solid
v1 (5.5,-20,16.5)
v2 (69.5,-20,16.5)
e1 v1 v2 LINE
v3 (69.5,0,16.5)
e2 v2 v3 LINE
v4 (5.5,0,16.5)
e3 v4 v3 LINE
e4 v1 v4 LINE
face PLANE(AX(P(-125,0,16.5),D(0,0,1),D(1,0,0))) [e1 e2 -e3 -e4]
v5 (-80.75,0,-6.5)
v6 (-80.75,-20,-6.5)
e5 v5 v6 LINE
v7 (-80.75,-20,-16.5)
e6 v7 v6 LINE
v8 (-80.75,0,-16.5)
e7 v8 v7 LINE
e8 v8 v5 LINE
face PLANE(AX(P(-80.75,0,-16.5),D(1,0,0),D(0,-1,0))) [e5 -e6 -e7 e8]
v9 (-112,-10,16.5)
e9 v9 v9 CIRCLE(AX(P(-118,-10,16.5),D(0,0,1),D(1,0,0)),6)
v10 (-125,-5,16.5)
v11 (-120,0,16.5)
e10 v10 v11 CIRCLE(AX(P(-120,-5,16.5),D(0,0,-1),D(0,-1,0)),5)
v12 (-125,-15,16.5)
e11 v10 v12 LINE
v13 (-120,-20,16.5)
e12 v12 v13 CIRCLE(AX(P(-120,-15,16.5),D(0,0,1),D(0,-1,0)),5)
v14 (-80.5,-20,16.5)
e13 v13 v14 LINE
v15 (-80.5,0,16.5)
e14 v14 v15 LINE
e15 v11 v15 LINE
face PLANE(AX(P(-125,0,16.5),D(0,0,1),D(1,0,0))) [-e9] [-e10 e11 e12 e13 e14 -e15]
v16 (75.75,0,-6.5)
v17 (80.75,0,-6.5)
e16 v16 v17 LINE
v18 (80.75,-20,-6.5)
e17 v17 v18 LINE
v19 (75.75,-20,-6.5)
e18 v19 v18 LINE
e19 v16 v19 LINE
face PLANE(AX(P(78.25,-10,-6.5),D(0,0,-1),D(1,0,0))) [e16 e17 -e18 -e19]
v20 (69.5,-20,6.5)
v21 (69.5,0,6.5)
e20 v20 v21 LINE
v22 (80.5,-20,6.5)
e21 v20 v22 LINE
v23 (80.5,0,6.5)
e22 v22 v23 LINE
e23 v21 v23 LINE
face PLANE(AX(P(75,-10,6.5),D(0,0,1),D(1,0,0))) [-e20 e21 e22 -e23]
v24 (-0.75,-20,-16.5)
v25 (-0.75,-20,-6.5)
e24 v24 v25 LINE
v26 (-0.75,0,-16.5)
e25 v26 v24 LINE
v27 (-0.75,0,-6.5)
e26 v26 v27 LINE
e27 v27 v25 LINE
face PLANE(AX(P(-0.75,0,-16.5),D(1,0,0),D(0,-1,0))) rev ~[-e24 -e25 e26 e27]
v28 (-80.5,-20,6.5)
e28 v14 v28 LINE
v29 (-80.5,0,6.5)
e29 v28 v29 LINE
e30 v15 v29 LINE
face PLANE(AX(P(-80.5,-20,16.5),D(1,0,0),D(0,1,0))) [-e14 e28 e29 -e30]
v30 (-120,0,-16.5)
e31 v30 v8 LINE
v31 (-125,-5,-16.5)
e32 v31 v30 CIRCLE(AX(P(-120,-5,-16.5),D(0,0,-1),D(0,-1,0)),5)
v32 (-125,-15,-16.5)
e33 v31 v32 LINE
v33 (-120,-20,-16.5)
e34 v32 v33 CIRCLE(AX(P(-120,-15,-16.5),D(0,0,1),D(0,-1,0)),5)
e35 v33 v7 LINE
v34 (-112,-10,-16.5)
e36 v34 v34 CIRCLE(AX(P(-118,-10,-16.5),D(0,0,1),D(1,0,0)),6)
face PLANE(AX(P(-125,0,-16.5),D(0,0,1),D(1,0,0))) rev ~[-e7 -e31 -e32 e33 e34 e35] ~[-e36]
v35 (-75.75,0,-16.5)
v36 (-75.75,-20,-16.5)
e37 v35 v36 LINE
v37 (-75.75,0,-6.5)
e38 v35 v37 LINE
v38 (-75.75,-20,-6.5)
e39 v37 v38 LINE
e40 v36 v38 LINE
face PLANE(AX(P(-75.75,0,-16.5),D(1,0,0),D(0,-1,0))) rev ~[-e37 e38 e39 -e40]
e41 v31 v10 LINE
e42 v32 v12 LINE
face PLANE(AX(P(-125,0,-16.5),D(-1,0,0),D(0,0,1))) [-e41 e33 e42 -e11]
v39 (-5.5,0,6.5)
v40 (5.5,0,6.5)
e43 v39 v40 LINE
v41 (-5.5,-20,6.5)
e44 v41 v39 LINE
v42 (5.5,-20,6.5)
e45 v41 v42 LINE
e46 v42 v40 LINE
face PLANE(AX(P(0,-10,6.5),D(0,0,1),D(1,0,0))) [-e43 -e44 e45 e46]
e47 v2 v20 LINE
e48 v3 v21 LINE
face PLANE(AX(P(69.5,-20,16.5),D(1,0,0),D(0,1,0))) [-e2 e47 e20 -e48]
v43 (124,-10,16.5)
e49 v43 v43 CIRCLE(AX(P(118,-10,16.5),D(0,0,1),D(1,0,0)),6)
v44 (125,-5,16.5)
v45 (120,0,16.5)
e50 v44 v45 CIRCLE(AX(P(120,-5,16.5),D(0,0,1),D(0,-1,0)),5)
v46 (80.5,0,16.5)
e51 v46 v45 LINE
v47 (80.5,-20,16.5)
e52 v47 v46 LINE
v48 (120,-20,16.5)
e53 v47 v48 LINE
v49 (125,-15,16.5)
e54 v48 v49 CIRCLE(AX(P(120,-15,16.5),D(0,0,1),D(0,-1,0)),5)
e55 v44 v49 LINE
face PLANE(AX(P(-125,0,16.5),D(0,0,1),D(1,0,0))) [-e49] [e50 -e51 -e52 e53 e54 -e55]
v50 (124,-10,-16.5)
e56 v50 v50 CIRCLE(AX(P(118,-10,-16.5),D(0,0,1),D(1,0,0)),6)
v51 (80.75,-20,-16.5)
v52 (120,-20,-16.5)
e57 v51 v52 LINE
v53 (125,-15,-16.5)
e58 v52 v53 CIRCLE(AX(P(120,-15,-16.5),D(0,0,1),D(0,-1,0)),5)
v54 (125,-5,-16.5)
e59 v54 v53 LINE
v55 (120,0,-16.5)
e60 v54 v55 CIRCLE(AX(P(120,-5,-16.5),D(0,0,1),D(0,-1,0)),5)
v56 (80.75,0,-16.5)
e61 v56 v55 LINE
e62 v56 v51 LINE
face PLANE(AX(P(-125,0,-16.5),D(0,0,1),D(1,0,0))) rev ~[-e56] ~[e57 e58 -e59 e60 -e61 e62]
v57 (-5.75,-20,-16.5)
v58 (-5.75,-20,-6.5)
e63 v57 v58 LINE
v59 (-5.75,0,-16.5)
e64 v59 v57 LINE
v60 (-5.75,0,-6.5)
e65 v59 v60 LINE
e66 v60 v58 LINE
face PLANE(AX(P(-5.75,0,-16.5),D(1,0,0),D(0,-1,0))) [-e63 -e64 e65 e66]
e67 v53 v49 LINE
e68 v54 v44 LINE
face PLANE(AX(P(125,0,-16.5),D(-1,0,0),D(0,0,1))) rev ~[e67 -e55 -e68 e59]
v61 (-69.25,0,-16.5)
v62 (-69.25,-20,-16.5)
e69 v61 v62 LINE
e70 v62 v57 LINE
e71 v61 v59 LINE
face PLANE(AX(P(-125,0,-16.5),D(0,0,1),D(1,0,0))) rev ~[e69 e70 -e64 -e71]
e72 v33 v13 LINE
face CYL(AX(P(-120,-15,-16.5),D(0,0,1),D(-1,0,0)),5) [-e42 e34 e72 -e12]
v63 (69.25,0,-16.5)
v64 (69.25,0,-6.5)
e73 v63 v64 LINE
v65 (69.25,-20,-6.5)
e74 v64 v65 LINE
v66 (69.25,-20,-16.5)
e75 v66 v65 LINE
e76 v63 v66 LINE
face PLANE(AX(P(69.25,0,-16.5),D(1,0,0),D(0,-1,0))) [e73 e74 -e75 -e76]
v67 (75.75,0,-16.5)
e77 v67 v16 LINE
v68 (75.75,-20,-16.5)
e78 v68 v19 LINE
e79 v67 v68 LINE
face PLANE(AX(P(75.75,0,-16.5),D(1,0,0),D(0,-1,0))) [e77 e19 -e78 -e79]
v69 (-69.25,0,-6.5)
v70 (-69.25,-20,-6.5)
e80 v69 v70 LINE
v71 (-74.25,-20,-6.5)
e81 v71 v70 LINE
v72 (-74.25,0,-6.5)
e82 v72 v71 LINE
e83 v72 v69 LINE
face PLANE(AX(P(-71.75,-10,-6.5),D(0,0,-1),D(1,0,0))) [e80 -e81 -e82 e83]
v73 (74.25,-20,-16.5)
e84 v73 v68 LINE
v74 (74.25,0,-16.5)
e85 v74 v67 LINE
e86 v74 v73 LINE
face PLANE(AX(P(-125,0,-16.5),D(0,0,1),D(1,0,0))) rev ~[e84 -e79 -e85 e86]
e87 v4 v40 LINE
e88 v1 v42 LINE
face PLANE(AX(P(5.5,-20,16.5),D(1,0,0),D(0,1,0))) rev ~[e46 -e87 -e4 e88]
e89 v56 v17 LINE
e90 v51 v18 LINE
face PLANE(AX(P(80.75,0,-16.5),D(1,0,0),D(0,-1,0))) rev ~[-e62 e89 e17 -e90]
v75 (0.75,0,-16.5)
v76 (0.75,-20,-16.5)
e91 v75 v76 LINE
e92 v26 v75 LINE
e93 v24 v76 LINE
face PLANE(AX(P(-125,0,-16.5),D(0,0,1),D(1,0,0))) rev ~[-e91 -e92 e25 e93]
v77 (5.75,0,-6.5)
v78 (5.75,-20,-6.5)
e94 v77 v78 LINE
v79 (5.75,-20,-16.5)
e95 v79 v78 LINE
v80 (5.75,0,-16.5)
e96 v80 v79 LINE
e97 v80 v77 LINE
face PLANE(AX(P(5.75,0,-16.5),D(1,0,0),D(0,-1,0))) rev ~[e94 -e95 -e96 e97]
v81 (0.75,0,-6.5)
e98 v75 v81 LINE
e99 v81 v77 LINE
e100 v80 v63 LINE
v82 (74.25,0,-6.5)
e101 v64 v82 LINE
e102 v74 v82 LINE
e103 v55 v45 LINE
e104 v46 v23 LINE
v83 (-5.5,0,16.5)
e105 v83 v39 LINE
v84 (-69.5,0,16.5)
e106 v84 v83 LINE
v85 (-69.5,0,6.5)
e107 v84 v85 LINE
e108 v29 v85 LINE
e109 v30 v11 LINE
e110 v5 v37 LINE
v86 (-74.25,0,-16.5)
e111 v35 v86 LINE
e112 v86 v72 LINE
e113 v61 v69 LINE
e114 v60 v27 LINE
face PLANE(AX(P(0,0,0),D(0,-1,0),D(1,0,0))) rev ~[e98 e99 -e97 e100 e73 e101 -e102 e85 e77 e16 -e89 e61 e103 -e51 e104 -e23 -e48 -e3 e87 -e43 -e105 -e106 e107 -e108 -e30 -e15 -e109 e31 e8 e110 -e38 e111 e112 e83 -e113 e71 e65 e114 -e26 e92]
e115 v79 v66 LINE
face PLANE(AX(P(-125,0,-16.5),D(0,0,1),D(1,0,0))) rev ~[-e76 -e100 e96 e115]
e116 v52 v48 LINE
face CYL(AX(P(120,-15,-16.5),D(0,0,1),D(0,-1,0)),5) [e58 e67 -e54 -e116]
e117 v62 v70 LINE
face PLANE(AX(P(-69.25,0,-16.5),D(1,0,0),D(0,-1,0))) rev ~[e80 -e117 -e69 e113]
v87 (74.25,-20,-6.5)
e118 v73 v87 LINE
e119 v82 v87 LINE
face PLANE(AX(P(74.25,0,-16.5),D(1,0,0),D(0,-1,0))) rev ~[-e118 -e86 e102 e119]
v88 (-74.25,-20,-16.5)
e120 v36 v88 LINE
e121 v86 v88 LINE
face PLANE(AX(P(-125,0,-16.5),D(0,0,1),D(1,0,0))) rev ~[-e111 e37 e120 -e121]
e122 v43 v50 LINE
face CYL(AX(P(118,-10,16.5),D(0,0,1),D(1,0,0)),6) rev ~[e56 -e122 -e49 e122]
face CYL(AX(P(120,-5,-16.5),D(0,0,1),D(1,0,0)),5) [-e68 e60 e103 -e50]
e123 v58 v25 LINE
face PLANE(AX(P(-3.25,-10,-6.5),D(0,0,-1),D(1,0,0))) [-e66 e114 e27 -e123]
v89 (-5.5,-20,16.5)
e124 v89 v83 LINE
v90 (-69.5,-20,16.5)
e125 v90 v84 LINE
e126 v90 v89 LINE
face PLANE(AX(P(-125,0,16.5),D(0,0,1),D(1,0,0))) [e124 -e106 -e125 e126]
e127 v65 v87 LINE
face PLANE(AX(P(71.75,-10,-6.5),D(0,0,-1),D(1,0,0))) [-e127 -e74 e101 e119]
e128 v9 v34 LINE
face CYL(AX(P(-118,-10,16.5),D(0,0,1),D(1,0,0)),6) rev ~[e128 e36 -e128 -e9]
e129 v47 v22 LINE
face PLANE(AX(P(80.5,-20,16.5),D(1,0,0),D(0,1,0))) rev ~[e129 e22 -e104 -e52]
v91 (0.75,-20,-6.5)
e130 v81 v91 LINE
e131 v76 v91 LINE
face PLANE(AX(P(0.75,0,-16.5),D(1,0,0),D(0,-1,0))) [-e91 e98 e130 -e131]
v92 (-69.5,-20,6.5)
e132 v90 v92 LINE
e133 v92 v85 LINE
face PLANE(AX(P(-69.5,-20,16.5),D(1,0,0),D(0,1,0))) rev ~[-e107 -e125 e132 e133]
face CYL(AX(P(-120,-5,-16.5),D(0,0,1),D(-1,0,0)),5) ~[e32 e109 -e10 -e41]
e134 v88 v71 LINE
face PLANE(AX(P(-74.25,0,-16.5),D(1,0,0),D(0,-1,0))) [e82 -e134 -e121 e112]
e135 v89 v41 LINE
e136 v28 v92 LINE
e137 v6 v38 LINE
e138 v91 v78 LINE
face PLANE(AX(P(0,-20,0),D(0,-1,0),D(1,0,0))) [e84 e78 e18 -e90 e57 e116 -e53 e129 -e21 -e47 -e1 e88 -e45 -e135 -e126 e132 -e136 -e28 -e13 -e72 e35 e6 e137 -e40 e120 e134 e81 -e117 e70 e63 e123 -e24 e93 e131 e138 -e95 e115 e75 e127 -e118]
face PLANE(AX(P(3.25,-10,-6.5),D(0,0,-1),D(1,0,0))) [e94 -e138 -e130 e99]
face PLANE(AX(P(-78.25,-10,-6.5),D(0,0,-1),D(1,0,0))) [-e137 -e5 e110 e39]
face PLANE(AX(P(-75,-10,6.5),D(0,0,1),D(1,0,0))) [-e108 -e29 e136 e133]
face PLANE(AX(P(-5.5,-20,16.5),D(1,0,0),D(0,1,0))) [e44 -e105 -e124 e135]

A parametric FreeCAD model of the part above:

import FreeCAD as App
import Part
import Sketcher

V = App.Vector


def edges_at(feature, points):
    """Names of the edges that pass closest to the given points."""
    edges = feature.Shape.Edges
    near = lambda p: min(range(len(edges)), key=lambda i: edges[i].distToShape(Part.Vertex(*p))[0])
    return sorted({f"Edge{near(p) + 1}" for p in points})


def add_polygon(sketch, points):
    """Adds a closed chain of lines whose ends are joined by coincident constraints."""
    first, n = sketch.GeometryCount, len(points)
    for a, b in zip(points, points[1:] + points[:1]):
        sketch.addGeometry(Part.LineSegment(App.Vector(*a, 0), App.Vector(*b, 0)), False)
    for i in range(n):
        sketch.addConstraint(Sketcher.Constraint("Coincident", first + i, 2, first + (i + 1) % n, 1))

doc = App.newDocument("Part")
body = doc.addObject("PartDesign::Body", "Body")

sketch1 = body.newObject("Sketcher::SketchObject", "Sketch")
sketch1.AttachmentSupport = (doc.getObject("XZ_Plane"), [""])
sketch1.MapMode = "FlatFace"
add_polygon(sketch1, [(-125, 16), (-125, -16), (125, -16), (125, 16)])
sketch1.addConstraint([
    Sketcher.Constraint("Vertical", 0),
    Sketcher.Constraint("Horizontal", 1),
    Sketcher.Constraint("Vertical", 2),
    Sketcher.Constraint("Horizontal", 3),
    Sketcher.Constraint("Symmetric", 0, 2, 2, 2, -1, 1),
    Sketcher.Constraint("DistanceX", 1, 1, 1, 2, 250.0),
    Sketcher.Constraint("DistanceY", 0, 2, 0, 1, 33.0),
])
pad1 = body.newObject("PartDesign::Pad", "Pad")
pad1.Profile = sketch1
pad1.Length = 20

sketch2 = body.newObject("Sketcher::SketchObject", "Sketch001")
sketch2.AttachmentSupport = (doc.getObject("XY_Plane"), [""])
sketch2.MapMode = "FlatFace"
sketch2.AttachmentOffset = App.Placement(V(0, 0, 16.5), App.Rotation())
add_polygon(sketch2, [(-80, 0), (-80, -20), (-70, -20), (-70, 0)])
add_polygon(sketch2, [(-6, 0), (-6, -20), (6, -20), (6, 0)])
add_polygon(sketch2, [(70, 0), (70, -20), (80, -20), (80, 0)])
sketch2.addConstraint([
    Sketcher.Constraint("Vertical", 0),
    Sketcher.Constraint("Horizontal", 1),
    Sketcher.Constraint("Vertical", 2),
    Sketcher.Constraint("Horizontal", 3),
    Sketcher.Constraint("Vertical", 4),
    Sketcher.Constraint("Horizontal", 5),
    Sketcher.Constraint("Vertical", 6),
    Sketcher.Constraint("Horizontal", 7),
    Sketcher.Constraint("Vertical", 8),
    Sketcher.Constraint("Horizontal", 9),
    Sketcher.Constraint("Vertical", 10),
    Sketcher.Constraint("Horizontal", 11),
    Sketcher.Constraint("Symmetric", 6, 2, 7, 2, -1, 1),
    Sketcher.Constraint("Symmetric", 3, 2, 10, 2, -1, 1),
    Sketcher.Constraint("Symmetric", 1, 2, 8, 2, -2),
    Sketcher.Constraint("PointOnObject", 2, 2, -1),
    Sketcher.Constraint("Horizontal", 1, 2, 4, 2),
    Sketcher.Constraint("Equal", 3, 5),
    Sketcher.Constraint("DistanceX", 1, 1, 1, 2, 11.0),
    Sketcher.Constraint("DistanceY", 0, 2, 0, 1, 20.0),
    Sketcher.Constraint("DistanceX", 1, 2, 4, 2, 64.0),
])
pocket1 = body.newObject("PartDesign::Pocket", "Pocket")
pocket1.Profile = sketch2
pocket1.Length = 10

sketch3 = body.newObject("Sketcher::SketchObject", "Sketch002")
sketch3.AttachmentSupport = (doc.getObject("XY_Plane"), [""])
sketch3.MapMode = "FlatFace"
sketch3.AttachmentOffset = App.Placement(V(0, 0, -16.5), App.Rotation())
add_polygon(sketch3, [(-81, -20), (-81, 0), (-76, 0), (-76, -20)])
add_polygon(sketch3, [(-74, -20), (-74, 0), (-69, 0), (-69, -20)])
add_polygon(sketch3, [(-6, -20), (-6, 0), (-1, 0), (-1, -20)])
add_polygon(sketch3, [(1, -20), (1, 0), (6, 0), (6, -20)])
add_polygon(sketch3, [(69, -20), (69, 0), (74, 0), (74, -20)])
add_polygon(sketch3, [(76, -20), (76, 0), (81, 0), (81, -20)])
sketch3.addConstraint([
    Sketcher.Constraint("Vertical", 0),
    Sketcher.Constraint("Horizontal", 1),
    Sketcher.Constraint("Vertical", 2),
    Sketcher.Constraint("Horizontal", 3),
    Sketcher.Constraint("Vertical", 4),
    Sketcher.Constraint("Horizontal", 5),
    Sketcher.Constraint("Vertical", 6),
    Sketcher.Constraint("Horizontal", 7),
    Sketcher.Constraint("Vertical", 8),
    Sketcher.Constraint("Horizontal", 9),
    Sketcher.Constraint("Vertical", 10),
    Sketcher.Constraint("Horizontal", 11),
    Sketcher.Constraint("Vertical", 12),
    Sketcher.Constraint("Horizontal", 13),
    Sketcher.Constraint("Vertical", 14),
    Sketcher.Constraint("Horizontal", 15),
    Sketcher.Constraint("Vertical", 16),
    Sketcher.Constraint("Horizontal", 17),
    Sketcher.Constraint("Vertical", 18),
    Sketcher.Constraint("Horizontal", 19),
    Sketcher.Constraint("Vertical", 20),
    Sketcher.Constraint("Horizontal", 21),
    Sketcher.Constraint("Vertical", 22),
    Sketcher.Constraint("Horizontal", 23),
    Sketcher.Constraint("Symmetric", 9, 2, 12, 2, -1, 1),
    Sketcher.Constraint("Symmetric", 5, 2, 16, 2, -1, 1),
    Sketcher.Constraint("Symmetric", 1, 2, 20, 2, -1, 1),
    Sketcher.Constraint("Symmetric", 8, 2, 13, 2, -2),
    Sketcher.Constraint("Symmetric", 4, 2, 17, 2, -2),
    Sketcher.Constraint("Symmetric", 0, 2, 21, 2, -2),
    Sketcher.Constraint("Horizontal", 3, 2, 6, 2),
    Sketcher.Constraint("Horizontal", 7, 2, 10, 2),
    Sketcher.Constraint("Horizontal", 11, 2, 14, 2),
    Sketcher.Constraint("Horizontal", 15, 2, 18, 2),
    Sketcher.Constraint("Horizontal", 19, 2, 22, 2),
    Sketcher.Constraint("Equal", 3, 5),
    Sketcher.Constraint("Equal", 7, 9),
    Sketcher.Constraint("DistanceX", 1, 1, 1, 2, 5.0),
    Sketcher.Constraint("DistanceY", 0, 1, 0, 2, 20.0),
    Sketcher.Constraint("DistanceX", 1, 2, 8, 2, 70.0),
    Sketcher.Constraint("DistanceX", 5, 2, 12, 2, 70.0),
    Sketcher.Constraint("DistanceX", 1, 2, 4, 2, 1.5),
])
pocket2 = body.newObject("PartDesign::Pocket", "Pocket001")
pocket2.Profile = sketch3
pocket2.Length = 10
pocket2.Reversed = True
doc.recompute()

fillet = body.newObject("PartDesign::Fillet", "Fillet")
fillet.Base = (pocket2, edges_at(pocket2, [(-125, -20, 0)]))
fillet.Radius = 5
doc.recompute()

fillet2 = body.newObject("PartDesign::Fillet", "Fillet001")
fillet2.Base = (fillet, edges_at(fillet, [(-125, 0, 0)]))
fillet2.Radius = 5
doc.recompute()

fillet3 = body.newObject("PartDesign::Fillet", "Fillet002")
fillet3.Base = (fillet2, edges_at(fillet2, [(125, -20, 0)]))
fillet3.Radius = 5
doc.recompute()

fillet4 = body.newObject("PartDesign::Fillet", "Fillet003")
fillet4.Base = (fillet3, edges_at(fillet3, [(125, 0, 0)]))
fillet4.Radius = 5

sketch4 = body.newObject("Sketcher::SketchObject", "Sketch003")
sketch4.AttachmentSupport = (doc.getObject("XY_Plane"), [""])
sketch4.MapMode = "FlatFace"
sketch4.AttachmentOffset = App.Placement(V(0, 0, 16.5), App.Rotation())
sketch4.addGeometry([
    Part.Circle(V(118, -10, 0), V(0, 0, 1), 6),
    Part.Circle(V(-118, -10, 0), V(0, 0, 1), 6),
], False)
sketch4.addConstraint([
    Sketcher.Constraint("Equal", 0, 1),
    Sketcher.Constraint("Symmetric", 0, 3, 1, 3, -2),
    Sketcher.Constraint("Diameter", 0, 12.0),
    Sketcher.Constraint("DistanceX", -1, 1, 0, 3, 118.0),
    Sketcher.Constraint("DistanceY", 0, 3, -1, 1, 10.0),
])
pocket3 = body.newObject("PartDesign::Pocket", "Pocket002")
pocket3.Profile = sketch4
pocket3.Type = "ThroughAll"

doc.recompute()
